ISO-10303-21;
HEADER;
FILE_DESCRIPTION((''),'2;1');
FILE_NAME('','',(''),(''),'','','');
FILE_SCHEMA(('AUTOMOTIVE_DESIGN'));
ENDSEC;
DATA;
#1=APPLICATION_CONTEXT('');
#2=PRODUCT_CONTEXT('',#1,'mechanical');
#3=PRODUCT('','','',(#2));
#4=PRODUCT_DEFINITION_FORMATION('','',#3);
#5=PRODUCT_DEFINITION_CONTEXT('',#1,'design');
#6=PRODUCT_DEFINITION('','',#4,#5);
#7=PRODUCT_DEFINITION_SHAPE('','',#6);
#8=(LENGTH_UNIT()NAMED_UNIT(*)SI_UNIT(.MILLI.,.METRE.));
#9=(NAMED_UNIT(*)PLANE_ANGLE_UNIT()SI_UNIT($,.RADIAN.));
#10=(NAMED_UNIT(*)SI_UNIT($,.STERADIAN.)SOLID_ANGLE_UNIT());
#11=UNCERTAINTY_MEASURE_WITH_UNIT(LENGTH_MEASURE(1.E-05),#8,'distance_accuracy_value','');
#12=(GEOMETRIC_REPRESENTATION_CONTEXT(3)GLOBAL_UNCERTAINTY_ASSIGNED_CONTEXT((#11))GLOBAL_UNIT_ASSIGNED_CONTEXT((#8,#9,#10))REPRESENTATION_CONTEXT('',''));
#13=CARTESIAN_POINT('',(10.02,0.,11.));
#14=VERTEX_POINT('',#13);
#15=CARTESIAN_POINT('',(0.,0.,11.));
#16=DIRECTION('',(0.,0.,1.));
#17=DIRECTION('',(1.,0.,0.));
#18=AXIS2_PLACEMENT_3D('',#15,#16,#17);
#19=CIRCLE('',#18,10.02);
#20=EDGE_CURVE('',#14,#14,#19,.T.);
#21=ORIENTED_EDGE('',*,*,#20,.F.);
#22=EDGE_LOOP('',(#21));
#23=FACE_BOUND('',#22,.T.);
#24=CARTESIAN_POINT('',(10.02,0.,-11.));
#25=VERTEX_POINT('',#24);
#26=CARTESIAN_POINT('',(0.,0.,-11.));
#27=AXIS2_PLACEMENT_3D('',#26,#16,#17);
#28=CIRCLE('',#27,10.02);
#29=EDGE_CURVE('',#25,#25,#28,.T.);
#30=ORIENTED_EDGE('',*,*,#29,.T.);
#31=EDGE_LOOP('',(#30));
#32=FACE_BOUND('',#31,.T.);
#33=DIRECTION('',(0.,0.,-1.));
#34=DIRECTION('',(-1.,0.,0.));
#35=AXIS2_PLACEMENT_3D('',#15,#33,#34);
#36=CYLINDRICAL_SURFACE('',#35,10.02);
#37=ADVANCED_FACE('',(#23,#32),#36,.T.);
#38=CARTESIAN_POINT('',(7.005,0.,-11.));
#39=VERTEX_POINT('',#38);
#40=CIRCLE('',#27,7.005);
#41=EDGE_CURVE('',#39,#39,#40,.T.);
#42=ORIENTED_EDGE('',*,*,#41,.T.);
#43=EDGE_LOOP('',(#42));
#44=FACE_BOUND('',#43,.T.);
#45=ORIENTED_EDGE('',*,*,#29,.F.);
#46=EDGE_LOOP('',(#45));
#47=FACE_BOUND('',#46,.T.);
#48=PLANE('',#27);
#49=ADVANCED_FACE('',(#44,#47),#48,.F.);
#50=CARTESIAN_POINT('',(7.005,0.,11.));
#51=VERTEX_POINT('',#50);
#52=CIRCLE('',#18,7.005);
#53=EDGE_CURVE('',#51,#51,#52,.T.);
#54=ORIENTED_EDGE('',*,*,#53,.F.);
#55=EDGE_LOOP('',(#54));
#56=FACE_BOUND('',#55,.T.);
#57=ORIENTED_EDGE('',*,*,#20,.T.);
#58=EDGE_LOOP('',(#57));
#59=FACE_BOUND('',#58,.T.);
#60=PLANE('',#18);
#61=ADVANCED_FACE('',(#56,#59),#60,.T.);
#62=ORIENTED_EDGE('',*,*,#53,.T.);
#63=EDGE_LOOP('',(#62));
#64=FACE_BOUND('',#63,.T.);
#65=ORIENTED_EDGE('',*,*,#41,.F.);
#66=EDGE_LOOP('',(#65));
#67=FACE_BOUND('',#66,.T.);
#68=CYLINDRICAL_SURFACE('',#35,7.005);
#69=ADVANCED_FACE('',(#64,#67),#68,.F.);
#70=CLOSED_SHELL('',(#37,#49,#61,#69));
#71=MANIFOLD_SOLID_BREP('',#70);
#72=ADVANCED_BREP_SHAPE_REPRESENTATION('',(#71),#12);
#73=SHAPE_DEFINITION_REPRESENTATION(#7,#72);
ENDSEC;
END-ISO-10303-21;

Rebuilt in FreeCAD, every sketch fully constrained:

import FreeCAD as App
import Part
import Sketcher

doc = App.newDocument("Part")
params = doc.addObject("Spreadsheet::Sheet", "Params")
for row, (alias, value) in enumerate([
    ("sketch1_diameter", "20.04 mm"),
    ("sketch1_diameter2", "14.01 mm"),
    ("pad1_length", "22 mm"),
], start=1):
    params.set(f"A{row}", alias)
    params.set(f"B{row}", "=" + value)
    params.setAlias(f"B{row}", alias)

body = doc.addObject("PartDesign::Body", "Body")

# Sketch on XY plane
sketch1 = body.newObject("Sketcher::SketchObject", "Sketch")
sketch1.AttachmentSupport = (doc.getObject("XY_Plane"), [""])
sketch1.MapMode = "FlatFace"
sketch1.addGeometry([
    Part.Circle(App.Vector(0, 0, 0), App.Vector(0, 0, 1), 10),
    Part.Circle(App.Vector(0, 0, 0), App.Vector(0, 0, 1), 7),
], False)
sketch1.addConstraint([
    Sketcher.Constraint("Coincident", 0, 3, -1, 1),
    Sketcher.Constraint("Coincident", 1, 3, -1, 1),
    Sketcher.Constraint("Diameter", 0, 20.04),
    Sketcher.Constraint("Diameter", 1, 14.01),
])
sketch1.setExpression("Constraints[2]", "Params.sketch1_diameter")
sketch1.setExpression("Constraints[3]", "Params.sketch1_diameter2")
pad1 = body.newObject("PartDesign::Pad", "Pad")
pad1.Profile = sketch1
pad1.setExpression("Length", "Params.pad1_length")
pad1.Midplane = True

doc.recompute()
